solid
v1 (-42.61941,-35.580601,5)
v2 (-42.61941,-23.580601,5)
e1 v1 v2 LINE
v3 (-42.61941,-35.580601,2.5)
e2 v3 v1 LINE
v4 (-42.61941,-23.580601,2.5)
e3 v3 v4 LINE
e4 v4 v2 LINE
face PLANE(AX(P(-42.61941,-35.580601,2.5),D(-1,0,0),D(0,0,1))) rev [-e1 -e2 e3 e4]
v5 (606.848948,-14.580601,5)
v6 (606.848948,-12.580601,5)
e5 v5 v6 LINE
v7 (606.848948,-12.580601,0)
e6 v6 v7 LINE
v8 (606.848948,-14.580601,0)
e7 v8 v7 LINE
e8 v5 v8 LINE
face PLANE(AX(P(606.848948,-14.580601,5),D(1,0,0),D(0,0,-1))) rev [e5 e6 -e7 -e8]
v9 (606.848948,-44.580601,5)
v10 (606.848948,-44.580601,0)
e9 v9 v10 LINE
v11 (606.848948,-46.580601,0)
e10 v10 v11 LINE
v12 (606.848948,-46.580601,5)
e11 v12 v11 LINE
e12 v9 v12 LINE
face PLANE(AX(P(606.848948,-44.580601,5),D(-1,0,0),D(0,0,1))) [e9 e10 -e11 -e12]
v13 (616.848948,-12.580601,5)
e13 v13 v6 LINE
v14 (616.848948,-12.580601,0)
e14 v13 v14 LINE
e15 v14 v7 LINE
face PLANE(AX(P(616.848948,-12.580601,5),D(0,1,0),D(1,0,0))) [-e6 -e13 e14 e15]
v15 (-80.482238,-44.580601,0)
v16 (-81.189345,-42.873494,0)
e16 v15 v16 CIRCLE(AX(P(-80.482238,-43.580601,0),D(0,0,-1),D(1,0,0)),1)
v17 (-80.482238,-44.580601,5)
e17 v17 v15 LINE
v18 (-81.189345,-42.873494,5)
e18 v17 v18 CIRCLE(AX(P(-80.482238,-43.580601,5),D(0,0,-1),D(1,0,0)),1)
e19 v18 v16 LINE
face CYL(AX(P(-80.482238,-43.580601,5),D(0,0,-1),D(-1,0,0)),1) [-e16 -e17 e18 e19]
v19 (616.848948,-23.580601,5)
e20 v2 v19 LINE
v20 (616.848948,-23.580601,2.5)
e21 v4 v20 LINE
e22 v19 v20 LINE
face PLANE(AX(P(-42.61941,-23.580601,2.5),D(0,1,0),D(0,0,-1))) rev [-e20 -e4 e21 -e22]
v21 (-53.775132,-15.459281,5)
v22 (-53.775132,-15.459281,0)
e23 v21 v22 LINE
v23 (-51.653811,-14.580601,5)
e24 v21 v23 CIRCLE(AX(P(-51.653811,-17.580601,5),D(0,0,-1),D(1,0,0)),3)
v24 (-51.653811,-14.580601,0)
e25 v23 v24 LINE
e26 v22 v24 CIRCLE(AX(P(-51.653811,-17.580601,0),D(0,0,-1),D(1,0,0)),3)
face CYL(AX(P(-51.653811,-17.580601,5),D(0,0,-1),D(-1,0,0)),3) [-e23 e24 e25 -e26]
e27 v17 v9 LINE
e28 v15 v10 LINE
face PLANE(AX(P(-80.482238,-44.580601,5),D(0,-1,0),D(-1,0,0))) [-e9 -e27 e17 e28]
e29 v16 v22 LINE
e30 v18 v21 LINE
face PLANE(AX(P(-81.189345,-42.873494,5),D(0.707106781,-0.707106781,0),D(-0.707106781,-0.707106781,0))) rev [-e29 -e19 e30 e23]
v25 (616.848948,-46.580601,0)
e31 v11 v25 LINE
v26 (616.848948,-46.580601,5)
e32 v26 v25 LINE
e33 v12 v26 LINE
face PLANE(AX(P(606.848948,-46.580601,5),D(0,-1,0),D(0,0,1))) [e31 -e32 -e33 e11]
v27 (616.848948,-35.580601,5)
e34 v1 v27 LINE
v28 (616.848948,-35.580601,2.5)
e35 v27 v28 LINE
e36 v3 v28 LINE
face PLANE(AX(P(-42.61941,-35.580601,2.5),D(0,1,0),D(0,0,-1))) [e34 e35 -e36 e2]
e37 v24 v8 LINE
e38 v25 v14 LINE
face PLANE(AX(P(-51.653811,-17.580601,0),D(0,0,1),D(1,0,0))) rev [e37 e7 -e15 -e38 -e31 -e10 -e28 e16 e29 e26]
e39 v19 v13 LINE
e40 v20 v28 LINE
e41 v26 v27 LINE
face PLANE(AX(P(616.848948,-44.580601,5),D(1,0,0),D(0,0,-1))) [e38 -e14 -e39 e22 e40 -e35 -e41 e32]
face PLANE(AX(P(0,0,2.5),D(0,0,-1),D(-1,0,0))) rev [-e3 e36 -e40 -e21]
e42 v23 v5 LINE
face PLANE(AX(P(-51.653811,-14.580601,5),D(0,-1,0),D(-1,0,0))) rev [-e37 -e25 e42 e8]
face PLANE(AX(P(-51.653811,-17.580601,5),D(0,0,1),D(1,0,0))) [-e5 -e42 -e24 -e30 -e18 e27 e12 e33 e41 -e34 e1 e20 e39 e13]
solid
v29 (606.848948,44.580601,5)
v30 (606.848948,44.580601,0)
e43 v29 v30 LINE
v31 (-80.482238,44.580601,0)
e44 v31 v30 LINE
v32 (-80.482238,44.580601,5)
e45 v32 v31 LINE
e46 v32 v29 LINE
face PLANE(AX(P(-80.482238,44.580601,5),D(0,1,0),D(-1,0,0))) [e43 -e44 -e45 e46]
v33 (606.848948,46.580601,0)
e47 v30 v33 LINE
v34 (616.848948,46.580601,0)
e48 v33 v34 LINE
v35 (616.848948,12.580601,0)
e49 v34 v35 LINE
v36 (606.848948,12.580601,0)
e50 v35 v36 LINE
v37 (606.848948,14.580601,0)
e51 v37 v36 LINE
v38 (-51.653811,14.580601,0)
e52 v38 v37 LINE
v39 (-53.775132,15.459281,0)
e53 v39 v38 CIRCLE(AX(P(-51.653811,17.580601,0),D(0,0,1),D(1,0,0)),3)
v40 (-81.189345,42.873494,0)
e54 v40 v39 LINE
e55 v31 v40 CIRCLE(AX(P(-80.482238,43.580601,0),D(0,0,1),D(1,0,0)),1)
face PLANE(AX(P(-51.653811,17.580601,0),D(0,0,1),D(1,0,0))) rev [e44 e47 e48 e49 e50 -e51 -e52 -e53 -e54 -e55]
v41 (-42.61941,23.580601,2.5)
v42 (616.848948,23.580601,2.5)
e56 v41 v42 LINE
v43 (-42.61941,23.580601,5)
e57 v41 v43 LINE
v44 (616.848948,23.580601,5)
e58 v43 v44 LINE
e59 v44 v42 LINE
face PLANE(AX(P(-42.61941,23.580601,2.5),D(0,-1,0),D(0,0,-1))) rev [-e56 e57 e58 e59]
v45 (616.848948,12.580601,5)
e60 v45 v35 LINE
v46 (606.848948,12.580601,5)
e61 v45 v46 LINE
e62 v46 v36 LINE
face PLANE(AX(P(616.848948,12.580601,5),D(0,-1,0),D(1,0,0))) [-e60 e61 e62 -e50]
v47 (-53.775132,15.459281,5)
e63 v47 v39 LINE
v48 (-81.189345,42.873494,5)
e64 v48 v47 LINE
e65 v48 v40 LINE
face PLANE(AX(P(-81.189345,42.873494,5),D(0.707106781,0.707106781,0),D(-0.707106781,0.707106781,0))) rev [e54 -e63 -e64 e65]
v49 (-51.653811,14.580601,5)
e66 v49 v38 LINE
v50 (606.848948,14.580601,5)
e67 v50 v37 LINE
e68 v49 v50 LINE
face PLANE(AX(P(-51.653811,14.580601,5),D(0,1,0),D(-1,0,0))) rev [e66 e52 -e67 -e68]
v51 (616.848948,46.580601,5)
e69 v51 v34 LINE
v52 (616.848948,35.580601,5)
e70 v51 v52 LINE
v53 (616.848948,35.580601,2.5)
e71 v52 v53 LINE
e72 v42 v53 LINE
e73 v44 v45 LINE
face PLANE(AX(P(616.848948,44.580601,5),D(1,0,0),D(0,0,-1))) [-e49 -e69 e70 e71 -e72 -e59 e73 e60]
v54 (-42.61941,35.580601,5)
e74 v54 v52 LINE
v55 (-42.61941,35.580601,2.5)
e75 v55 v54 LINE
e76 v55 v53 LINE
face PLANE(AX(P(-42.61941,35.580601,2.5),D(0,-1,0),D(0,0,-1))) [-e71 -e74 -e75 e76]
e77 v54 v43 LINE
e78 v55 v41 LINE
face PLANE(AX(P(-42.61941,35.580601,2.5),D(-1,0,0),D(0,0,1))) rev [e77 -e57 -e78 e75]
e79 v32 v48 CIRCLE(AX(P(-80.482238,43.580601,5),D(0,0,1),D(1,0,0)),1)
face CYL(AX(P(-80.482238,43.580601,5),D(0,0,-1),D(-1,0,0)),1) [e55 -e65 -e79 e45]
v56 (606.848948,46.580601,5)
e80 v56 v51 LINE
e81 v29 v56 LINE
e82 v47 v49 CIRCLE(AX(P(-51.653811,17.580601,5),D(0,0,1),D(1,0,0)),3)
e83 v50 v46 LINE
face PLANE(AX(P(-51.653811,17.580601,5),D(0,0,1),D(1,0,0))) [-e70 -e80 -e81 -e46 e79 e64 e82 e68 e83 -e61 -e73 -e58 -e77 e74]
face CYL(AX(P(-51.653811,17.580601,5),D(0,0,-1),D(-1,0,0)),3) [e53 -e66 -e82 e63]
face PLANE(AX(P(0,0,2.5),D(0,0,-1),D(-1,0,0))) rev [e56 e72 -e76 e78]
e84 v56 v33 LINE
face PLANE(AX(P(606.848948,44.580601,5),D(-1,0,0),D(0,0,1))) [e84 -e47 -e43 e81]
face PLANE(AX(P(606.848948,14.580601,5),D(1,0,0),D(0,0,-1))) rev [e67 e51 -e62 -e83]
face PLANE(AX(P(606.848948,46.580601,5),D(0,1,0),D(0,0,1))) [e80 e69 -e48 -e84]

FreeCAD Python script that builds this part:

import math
import FreeCAD as App
import Part
import Sketcher
from FreeCAD import Vector
Q = App.Units.Quantity

doc = App.newDocument("Part")
body = doc.addObject("PartDesign::Body", "Body")

# Sketch on XY plane
sketch1 = doc.addObject("Sketcher::SketchObject", "Sketch")
body.addObject(sketch1)
sketch1.AttachmentSupport = (doc.XY_Plane, [""])
sketch1.MapMode = "FlatFace"
sketch1.addGeometry(Part.ArcOfCircle(Part.Circle(Vector(-80.482238, 43.580601, 0), Vector(0, 0, 1), 1), math.radians(90), math.radians(225)), False)
sketch1.addGeometry(Part.LineSegment(Vector(-81.189345, 42.873494, 0), Vector(-53.775132, 15.459281, 0)), False)
sketch1.addGeometry(Part.ArcOfCircle(Part.Circle(Vector(-51.653811, 17.580601, 0), Vector(0, 0, 1), 3), math.radians(-135), math.radians(-90)), False)
sketch1.addGeometry(Part.LineSegment(Vector(-51.653811, 14.580601, 0), Vector(606.848948, 14.580601, 0)), False)
sketch1.addGeometry(Part.LineSegment(Vector(606.848948, 14.580601, 0), Vector(606.848948, 12.580601, 0)), False)
sketch1.addGeometry(Part.LineSegment(Vector(606.848948, 12.580601, 0), Vector(616.848948, 12.580601, 0)), False)
sketch1.addGeometry(Part.LineSegment(Vector(616.848948, 12.580601, 0), Vector(616.848948, 46.580601, 0)), False)
sketch1.addGeometry(Part.LineSegment(Vector(616.848948, 46.580601, 0), Vector(606.848948, 46.580601, 0)), False)
sketch1.addGeometry(Part.LineSegment(Vector(606.848948, 46.580601, 0), Vector(606.848948, 44.580601, 0)), False)
sketch1.addGeometry(Part.LineSegment(Vector(606.848948, 44.580601, 0), Vector(-80.482238, 44.580601, 0)), False)
sketch1.addConstraint(Sketcher.Constraint("Tangent", 0, 2, 1, 1))
sketch1.addConstraint(Sketcher.Constraint("Tangent", 1, 2, 2, 1))
sketch1.addConstraint(Sketcher.Constraint("Tangent", 2, 2, 3, 1))
sketch1.addConstraint(Sketcher.Constraint("Coincident", 3, 2, 4, 1))
sketch1.addConstraint(Sketcher.Constraint("Coincident", 4, 2, 5, 1))
sketch1.addConstraint(Sketcher.Constraint("Coincident", 5, 2, 6, 1))
sketch1.addConstraint(Sketcher.Constraint("Coincident", 6, 2, 7, 1))
sketch1.addConstraint(Sketcher.Constraint("Coincident", 7, 2, 8, 1))
sketch1.addConstraint(Sketcher.Constraint("Coincident", 8, 2, 9, 1))
sketch1.addConstraint(Sketcher.Constraint("Tangent", 9, 2, 0, 1))
sketch1.addConstraint(Sketcher.Constraint("Horizontal", 3))
sketch1.addConstraint(Sketcher.Constraint("Vertical", 4))
sketch1.addConstraint(Sketcher.Constraint("Horizontal", 5))
sketch1.addConstraint(Sketcher.Constraint("Vertical", 6))
sketch1.addConstraint(Sketcher.Constraint("Horizontal", 7))
sketch1.addConstraint(Sketcher.Constraint("Vertical", 8))
sketch1.addConstraint(Sketcher.Constraint("Horizontal", 9))
sketch1.addConstraint(Sketcher.Constraint("Vertical", 4, 2, 7, 2))
sketch1.addConstraint(Sketcher.Constraint("Equal", 4, 8))
sketch1.addConstraint(Sketcher.Constraint("Radius", 0, 1.0))
sketch1.addConstraint(Sketcher.Constraint("Radius", 2, 3.0))
sketch1.addConstraint(Sketcher.Constraint("DistanceX", 5, 1, 5, 2, 10.0))
sketch1.addConstraint(Sketcher.Constraint("DistanceY", 4, 2, 4, 1, 2.0))
sketch1.addConstraint(Sketcher.Constraint("DistanceY", 6, 1, 6, 2, 34.0))
sketch1.addConstraint(Sketcher.Constraint("Angle", 1, Q("-45 deg")))
sketch1.addConstraint(Sketcher.Constraint("DistanceX", 3, 1, 3, 2, 658.50276))
sketch1.addConstraint(Sketcher.Constraint("DistanceY", -1, 1, 0, 3, 43.580601))
sketch1.addConstraint(Sketcher.Constraint("DistanceX", 0, 3, -1, 1, 80.482238))
pad1 = doc.addObject("PartDesign::Pad", "Pad")
body.addObject(pad1)
pad1.Profile = sketch1
pad1.Length = 5

# Sketch on XY plane
sketch2 = doc.addObject("Sketcher::SketchObject", "Sketch001")
body.addObject(sketch2)
sketch2.AttachmentSupport = (doc.XY_Plane, [""])
sketch2.MapMode = "FlatFace"
sketch2.AttachmentOffset = App.Placement(Vector(0, 0, 5), App.Rotation())
sketch2.addGeometry(Part.LineSegment(Vector(-42.61941, 35.580601, 0), Vector(-42.61941, 23.580601, 0)), False)
sketch2.addGeometry(Part.LineSegment(Vector(-42.61941, 23.580601, 0), Vector(617.38059, 23.580601, 0)), False)
sketch2.addGeometry(Part.LineSegment(Vector(617.38059, 23.580601, 0), Vector(617.38059, 35.580601, 0)), False)
sketch2.addGeometry(Part.LineSegment(Vector(617.38059, 35.580601, 0), Vector(-42.61941, 35.580601, 0)), False)
sketch2.addConstraint(Sketcher.Constraint("Coincident", 0, 2, 1, 1))
sketch2.addConstraint(Sketcher.Constraint("Coincident", 1, 2, 2, 1))
sketch2.addConstraint(Sketcher.Constraint("Coincident", 2, 2, 3, 1))
sketch2.addConstraint(Sketcher.Constraint("Coincident", 3, 2, 0, 1))
sketch2.addConstraint(Sketcher.Constraint("Vertical", 0))
sketch2.addConstraint(Sketcher.Constraint("Horizontal", 1))
sketch2.addConstraint(Sketcher.Constraint("Vertical", 2))
sketch2.addConstraint(Sketcher.Constraint("Horizontal", 3))
sketch2.addConstraint(Sketcher.Constraint("DistanceX", 1, 1, 1, 2, 660.0))
sketch2.addConstraint(Sketcher.Constraint("DistanceY", 0, 2, 0, 1, 12.0))
sketch2.addConstraint(Sketcher.Constraint("DistanceY", -1, 1, 0, 2, 23.580601))
sketch2.addConstraint(Sketcher.Constraint("DistanceX", 0, 2, -1, 1, 42.61941))
pocket1 = doc.addObject("PartDesign::Pocket", "Pocket")
body.addObject(pocket1)
pocket1.Profile = sketch2
pocket1.Length = 2.5
body2 = doc.addObject("PartDesign::Body", "Body001")
doc.recompute()

mirroring = doc.addObject("Part::Mirroring", "Mirroring")
mirroring.Source = body
mirroring.Base = Vector(0, 0, 0)
mirroring.Normal = Vector(0, 1, 0)
body2.BaseFeature = mirroring
doc.recompute()
mirroring.Visibility = False

doc.recompute()
